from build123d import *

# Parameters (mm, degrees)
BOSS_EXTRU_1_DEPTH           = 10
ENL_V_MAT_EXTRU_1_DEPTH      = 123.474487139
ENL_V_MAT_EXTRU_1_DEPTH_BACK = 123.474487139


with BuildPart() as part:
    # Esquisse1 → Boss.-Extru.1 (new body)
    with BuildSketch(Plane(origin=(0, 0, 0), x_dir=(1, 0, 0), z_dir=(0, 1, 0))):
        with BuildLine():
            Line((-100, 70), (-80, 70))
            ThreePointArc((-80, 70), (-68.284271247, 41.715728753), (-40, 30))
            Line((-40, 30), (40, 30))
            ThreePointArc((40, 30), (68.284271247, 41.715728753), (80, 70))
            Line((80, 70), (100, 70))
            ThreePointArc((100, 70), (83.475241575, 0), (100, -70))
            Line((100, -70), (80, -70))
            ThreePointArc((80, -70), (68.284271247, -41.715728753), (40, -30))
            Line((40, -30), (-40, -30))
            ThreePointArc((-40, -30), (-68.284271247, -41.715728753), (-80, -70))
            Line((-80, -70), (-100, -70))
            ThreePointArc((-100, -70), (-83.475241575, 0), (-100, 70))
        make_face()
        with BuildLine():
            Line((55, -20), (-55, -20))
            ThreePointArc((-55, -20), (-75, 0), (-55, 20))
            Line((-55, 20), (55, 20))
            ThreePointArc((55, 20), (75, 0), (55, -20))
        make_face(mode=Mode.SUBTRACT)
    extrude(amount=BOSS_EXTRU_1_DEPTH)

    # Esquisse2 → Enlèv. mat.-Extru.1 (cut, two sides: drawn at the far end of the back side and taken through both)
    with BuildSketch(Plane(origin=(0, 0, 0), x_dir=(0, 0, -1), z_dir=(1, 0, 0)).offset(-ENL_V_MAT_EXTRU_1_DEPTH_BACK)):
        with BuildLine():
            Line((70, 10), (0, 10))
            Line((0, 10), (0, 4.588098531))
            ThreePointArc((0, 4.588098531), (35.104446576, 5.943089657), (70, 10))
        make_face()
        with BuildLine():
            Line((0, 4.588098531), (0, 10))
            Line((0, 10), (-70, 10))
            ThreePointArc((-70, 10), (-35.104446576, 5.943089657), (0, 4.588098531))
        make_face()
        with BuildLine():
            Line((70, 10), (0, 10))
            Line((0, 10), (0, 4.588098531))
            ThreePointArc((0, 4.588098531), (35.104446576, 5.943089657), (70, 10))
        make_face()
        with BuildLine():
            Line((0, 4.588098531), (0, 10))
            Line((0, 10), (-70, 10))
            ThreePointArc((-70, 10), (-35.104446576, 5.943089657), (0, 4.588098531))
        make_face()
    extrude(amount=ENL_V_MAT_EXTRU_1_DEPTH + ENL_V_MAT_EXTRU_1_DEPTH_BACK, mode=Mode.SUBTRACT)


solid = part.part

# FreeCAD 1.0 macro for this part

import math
import FreeCAD as App
import Part
import Sketcher
Q = App.Units.Quantity

doc = App.newDocument("Part")
body = doc.addObject("PartDesign::Body", "Body")

# Sketch on XZ plane
sketch1 = doc.addObject("Sketcher::SketchObject", "Sketch")
body.addObject(sketch1)
sketch1.AttachmentSupport = (doc.XZ_Plane, [""])
sketch1.MapMode = "FlatFace"
sketch1.addGeometry([
    Part.LineSegment(App.Vector(-80, -70, 0), App.Vector(-100, -70, 0)),  # 0
    Part.ArcOfCircle(Part.Circle(App.Vector(-240, 0, 0), App.Vector(0, 0, 1), 157), math.radians(-27), math.radians(27)),  # 1
    Part.LineSegment(App.Vector(-100, 70, 0), App.Vector(-80, 70, 0)),  # 2
    Part.ArcOfCircle(Part.Circle(App.Vector(-40, 70, 0), App.Vector(0, 0, 1), 40), math.radians(-180), math.radians(-90)),  # 3
    Part.LineSegment(App.Vector(-40, 30, 0), App.Vector(40, 30, 0)),  # 4
    Part.ArcOfCircle(Part.Circle(App.Vector(40, 70, 0), App.Vector(0, 0, 1), 40), math.radians(-90), math.radians(0)),  # 5
    Part.LineSegment(App.Vector(80, 70, 0), App.Vector(100, 70, 0)),  # 6
    Part.ArcOfCircle(Part.Circle(App.Vector(240, 0, 0), App.Vector(0, 0, 1), 157), math.radians(153), math.radians(207)),  # 7
    Part.LineSegment(App.Vector(100, -70, 0), App.Vector(80, -70, 0)),  # 8
    Part.ArcOfCircle(Part.Circle(App.Vector(40, -70, 0), App.Vector(0, 0, 1), 40), math.radians(0), math.radians(90)),  # 9
    Part.LineSegment(App.Vector(40, -30, 0), App.Vector(-40, -30, 0)),  # 10
    Part.ArcOfCircle(Part.Circle(App.Vector(-40, -70, 0), App.Vector(0, 0, 1), 40), math.radians(90), math.radians(180)),  # 11
    Part.LineSegment(App.Vector(55, 20, 0), App.Vector(-55, 20, 0)),  # 12
    Part.ArcOfCircle(Part.Circle(App.Vector(-55, 0, 0), App.Vector(0, 0, 1), 20), math.radians(90), math.radians(270)),  # 13
    Part.LineSegment(App.Vector(-55, -20, 0), App.Vector(55, -20, 0)),  # 14
    Part.ArcOfCircle(Part.Circle(App.Vector(55, 0, 0), App.Vector(0, 0, 1), 20), math.radians(-90), math.radians(90)),  # 15
], False)
sketch1.addConstraint([
    Sketcher.Constraint("Coincident", 0, 2, 1, 1),
    Sketcher.Constraint("Coincident", 1, 2, 2, 1),
    Sketcher.Constraint("Coincident", 2, 2, 3, 1),
    Sketcher.Constraint("Tangent", 3, 2, 4, 1),
    Sketcher.Constraint("Tangent", 4, 2, 5, 1),
    Sketcher.Constraint("Coincident", 5, 2, 6, 1),
    Sketcher.Constraint("Coincident", 6, 2, 7, 1),
    Sketcher.Constraint("Coincident", 7, 2, 8, 1),
    Sketcher.Constraint("Coincident", 8, 2, 9, 1),
    Sketcher.Constraint("Tangent", 9, 2, 10, 1),
    Sketcher.Constraint("Tangent", 10, 2, 11, 1),
    Sketcher.Constraint("Coincident", 11, 2, 0, 1),
    Sketcher.Constraint("Tangent", 12, 2, 13, 1),
    Sketcher.Constraint("Tangent", 13, 2, 14, 1),
    Sketcher.Constraint("Tangent", 14, 2, 15, 1),
    Sketcher.Constraint("Tangent", 15, 2, 12, 1),
    Sketcher.Constraint("Horizontal", 0),
    Sketcher.Constraint("Horizontal", 2),
    Sketcher.Constraint("Horizontal", 4),
    Sketcher.Constraint("Horizontal", 6),
    Sketcher.Constraint("Horizontal", 8),
    Sketcher.Constraint("Horizontal", 10),
    Sketcher.Constraint("Horizontal", 12),
    Sketcher.Constraint("Horizontal", 14),
    Sketcher.Constraint("Equal", 3, 5),
    Sketcher.Constraint("Equal", 1, 7),
    Sketcher.Constraint("Equal", 5, 9),
    Sketcher.Constraint("Equal", 9, 11),
    Sketcher.Constraint("Symmetric", 1, 3, 7, 3, -1, 1),
    Sketcher.Constraint("Symmetric", 3, 3, 9, 3, -1, 1),
    Sketcher.Constraint("Symmetric", 13, 3, 15, 3, -1, 1),
    Sketcher.Constraint("Symmetric", 5, 2, 11, 2, -1, 1),
    Sketcher.Constraint("Symmetric", 2, 2, 5, 2, -2),
    Sketcher.Constraint("Symmetric", 0, 2, 7, 2, -2),
    Sketcher.Constraint("Horizontal", 11, 3, 0, 2),
    Sketcher.Constraint("Radius", 3, Q("40 mm")),
    Sketcher.Constraint("Radius", 13, Q("20 mm")),
    Sketcher.Constraint("DistanceX", 0, 2, 0, 1, Q("20 mm")),
    Sketcher.Constraint("DistanceX", 4, 1, 4, 2, Q("80 mm")),
    Sketcher.Constraint("DistanceX", 12, 2, 12, 1, Q("110 mm")),
    Sketcher.Constraint("DistanceX", 1, 3, -1, 1, Q("240 mm")),
    Sketcher.Constraint("DistanceY", -1, 1, 3, 3, Q("70 mm")),
])
pad1 = doc.addObject("PartDesign::Pad", "Pad")
body.addObject(pad1)
pad1.Profile = sketch1
pad1.Length = 10
pad1.Reversed = True

# Sketch on YZ plane
sketch2 = doc.addObject("Sketcher::SketchObject", "Sketch001")
body.addObject(sketch2)
sketch2.AttachmentSupport = (doc.YZ_Plane, [""])
sketch2.MapMode = "FlatFace"
sketch2.addGeometry([
    Part.LineSegment(App.Vector(10, -70, 0), App.Vector(10, 70, 0)),
    Part.ArcOfCircle(Part.Circle(App.Vector(460, 0, 0), App.Vector(0, 0, 1), 455), math.radians(171.16), math.radians(180)),
    Part.ArcOfCircle(Part.Circle(App.Vector(460, 0, 0), App.Vector(0, 0, 1), 455), math.radians(-180), math.radians(-171.16)),
], False)
sketch2.addConstraint([
    Sketcher.Constraint("Coincident", 0, 2, 1, 1),
    Sketcher.Constraint("Tangent", 1, 2, 2, 1),
    Sketcher.Constraint("Coincident", 2, 2, 0, 1),
    Sketcher.Constraint("Vertical", 0),
    Sketcher.Constraint("Equal", 1, 2),
    Sketcher.Constraint("PointOnObject", 1, 3, -1),
    Sketcher.Constraint("PointOnObject", 1, 2, -1),
    Sketcher.Constraint("DistanceY", 0, 1, 0, 2, Q("140 mm")),
    Sketcher.Constraint("DistanceX", -1, 1, 1, 3, Q("460 mm")),
    Sketcher.Constraint("DistanceX", -1, 1, 0, 2, Q("10 mm")),
])
pocket1 = doc.addObject("PartDesign::Pocket", "Pocket")
body.addObject(pocket1)
pocket1.Profile = sketch2
pocket1.Type = "ThroughAll"
pocket1.Midplane = True

doc.recompute()
